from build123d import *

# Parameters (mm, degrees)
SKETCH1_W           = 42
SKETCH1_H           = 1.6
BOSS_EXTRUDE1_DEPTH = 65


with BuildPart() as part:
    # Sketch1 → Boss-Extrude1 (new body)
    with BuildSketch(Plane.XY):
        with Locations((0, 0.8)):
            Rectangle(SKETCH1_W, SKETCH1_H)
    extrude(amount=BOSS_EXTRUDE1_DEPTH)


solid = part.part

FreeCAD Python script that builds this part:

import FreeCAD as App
import Part
import Sketcher

V = App.Vector

doc = App.newDocument("Part")
params = doc.addObject("Spreadsheet::Sheet", "Params")
for row, (alias, value) in enumerate([
    ("sketch1_width", "42 mm"),
    ("sketch1_height", "1.6 mm"),
    ("pad1_length", "65 mm"),
], start=1):
    params.set(f"A{row}", alias)
    params.set(f"B{row}", "=" + value)
    params.setAlias(f"B{row}", alias)

body = doc.addObject("PartDesign::Body", "Body")

# Sketch on XY plane
sketch1 = body.newObject("Sketcher::SketchObject", "Sketch")
sketch1.AttachmentSupport = (doc.getObject("XY_Plane"), [""])
sketch1.MapMode = "FlatFace"
sketch1.addGeometry([
    Part.LineSegment(V(-21, 1.6, 0), V(-21, 0, 0)),
    Part.LineSegment(V(-21, 0, 0), V(21, 0, 0)),
    Part.LineSegment(V(21, 0, 0), V(21, 1.6, 0)),
    Part.LineSegment(V(21, 1.6, 0), V(-21, 1.6, 0)),
], False)
sketch1.addConstraint([
    Sketcher.Constraint("Coincident", 0, 2, 1, 1),
    Sketcher.Constraint("Coincident", 1, 2, 2, 1),
    Sketcher.Constraint("Coincident", 2, 2, 3, 1),
    Sketcher.Constraint("Coincident", 3, 2, 0, 1),
    Sketcher.Constraint("Vertical", 0),
    Sketcher.Constraint("Horizontal", 1),
    Sketcher.Constraint("Vertical", 2),
    Sketcher.Constraint("Horizontal", 3),
    Sketcher.Constraint("Symmetric", 0, 2, 1, 2, -1, 1),
    Sketcher.Constraint("DistanceX", 1, 1, 1, 2, 42.0),
    Sketcher.Constraint("DistanceY", 0, 2, 0, 1, 1.6),
])
sketch1.setExpression("Constraints[9]", "Params.sketch1_width")
sketch1.setExpression("Constraints[10]", "Params.sketch1_height")
pad1 = body.newObject("PartDesign::Pad", "Pad")
pad1.Profile = sketch1
pad1.setExpression("Length", "Params.pad1_length")

doc.recompute()
